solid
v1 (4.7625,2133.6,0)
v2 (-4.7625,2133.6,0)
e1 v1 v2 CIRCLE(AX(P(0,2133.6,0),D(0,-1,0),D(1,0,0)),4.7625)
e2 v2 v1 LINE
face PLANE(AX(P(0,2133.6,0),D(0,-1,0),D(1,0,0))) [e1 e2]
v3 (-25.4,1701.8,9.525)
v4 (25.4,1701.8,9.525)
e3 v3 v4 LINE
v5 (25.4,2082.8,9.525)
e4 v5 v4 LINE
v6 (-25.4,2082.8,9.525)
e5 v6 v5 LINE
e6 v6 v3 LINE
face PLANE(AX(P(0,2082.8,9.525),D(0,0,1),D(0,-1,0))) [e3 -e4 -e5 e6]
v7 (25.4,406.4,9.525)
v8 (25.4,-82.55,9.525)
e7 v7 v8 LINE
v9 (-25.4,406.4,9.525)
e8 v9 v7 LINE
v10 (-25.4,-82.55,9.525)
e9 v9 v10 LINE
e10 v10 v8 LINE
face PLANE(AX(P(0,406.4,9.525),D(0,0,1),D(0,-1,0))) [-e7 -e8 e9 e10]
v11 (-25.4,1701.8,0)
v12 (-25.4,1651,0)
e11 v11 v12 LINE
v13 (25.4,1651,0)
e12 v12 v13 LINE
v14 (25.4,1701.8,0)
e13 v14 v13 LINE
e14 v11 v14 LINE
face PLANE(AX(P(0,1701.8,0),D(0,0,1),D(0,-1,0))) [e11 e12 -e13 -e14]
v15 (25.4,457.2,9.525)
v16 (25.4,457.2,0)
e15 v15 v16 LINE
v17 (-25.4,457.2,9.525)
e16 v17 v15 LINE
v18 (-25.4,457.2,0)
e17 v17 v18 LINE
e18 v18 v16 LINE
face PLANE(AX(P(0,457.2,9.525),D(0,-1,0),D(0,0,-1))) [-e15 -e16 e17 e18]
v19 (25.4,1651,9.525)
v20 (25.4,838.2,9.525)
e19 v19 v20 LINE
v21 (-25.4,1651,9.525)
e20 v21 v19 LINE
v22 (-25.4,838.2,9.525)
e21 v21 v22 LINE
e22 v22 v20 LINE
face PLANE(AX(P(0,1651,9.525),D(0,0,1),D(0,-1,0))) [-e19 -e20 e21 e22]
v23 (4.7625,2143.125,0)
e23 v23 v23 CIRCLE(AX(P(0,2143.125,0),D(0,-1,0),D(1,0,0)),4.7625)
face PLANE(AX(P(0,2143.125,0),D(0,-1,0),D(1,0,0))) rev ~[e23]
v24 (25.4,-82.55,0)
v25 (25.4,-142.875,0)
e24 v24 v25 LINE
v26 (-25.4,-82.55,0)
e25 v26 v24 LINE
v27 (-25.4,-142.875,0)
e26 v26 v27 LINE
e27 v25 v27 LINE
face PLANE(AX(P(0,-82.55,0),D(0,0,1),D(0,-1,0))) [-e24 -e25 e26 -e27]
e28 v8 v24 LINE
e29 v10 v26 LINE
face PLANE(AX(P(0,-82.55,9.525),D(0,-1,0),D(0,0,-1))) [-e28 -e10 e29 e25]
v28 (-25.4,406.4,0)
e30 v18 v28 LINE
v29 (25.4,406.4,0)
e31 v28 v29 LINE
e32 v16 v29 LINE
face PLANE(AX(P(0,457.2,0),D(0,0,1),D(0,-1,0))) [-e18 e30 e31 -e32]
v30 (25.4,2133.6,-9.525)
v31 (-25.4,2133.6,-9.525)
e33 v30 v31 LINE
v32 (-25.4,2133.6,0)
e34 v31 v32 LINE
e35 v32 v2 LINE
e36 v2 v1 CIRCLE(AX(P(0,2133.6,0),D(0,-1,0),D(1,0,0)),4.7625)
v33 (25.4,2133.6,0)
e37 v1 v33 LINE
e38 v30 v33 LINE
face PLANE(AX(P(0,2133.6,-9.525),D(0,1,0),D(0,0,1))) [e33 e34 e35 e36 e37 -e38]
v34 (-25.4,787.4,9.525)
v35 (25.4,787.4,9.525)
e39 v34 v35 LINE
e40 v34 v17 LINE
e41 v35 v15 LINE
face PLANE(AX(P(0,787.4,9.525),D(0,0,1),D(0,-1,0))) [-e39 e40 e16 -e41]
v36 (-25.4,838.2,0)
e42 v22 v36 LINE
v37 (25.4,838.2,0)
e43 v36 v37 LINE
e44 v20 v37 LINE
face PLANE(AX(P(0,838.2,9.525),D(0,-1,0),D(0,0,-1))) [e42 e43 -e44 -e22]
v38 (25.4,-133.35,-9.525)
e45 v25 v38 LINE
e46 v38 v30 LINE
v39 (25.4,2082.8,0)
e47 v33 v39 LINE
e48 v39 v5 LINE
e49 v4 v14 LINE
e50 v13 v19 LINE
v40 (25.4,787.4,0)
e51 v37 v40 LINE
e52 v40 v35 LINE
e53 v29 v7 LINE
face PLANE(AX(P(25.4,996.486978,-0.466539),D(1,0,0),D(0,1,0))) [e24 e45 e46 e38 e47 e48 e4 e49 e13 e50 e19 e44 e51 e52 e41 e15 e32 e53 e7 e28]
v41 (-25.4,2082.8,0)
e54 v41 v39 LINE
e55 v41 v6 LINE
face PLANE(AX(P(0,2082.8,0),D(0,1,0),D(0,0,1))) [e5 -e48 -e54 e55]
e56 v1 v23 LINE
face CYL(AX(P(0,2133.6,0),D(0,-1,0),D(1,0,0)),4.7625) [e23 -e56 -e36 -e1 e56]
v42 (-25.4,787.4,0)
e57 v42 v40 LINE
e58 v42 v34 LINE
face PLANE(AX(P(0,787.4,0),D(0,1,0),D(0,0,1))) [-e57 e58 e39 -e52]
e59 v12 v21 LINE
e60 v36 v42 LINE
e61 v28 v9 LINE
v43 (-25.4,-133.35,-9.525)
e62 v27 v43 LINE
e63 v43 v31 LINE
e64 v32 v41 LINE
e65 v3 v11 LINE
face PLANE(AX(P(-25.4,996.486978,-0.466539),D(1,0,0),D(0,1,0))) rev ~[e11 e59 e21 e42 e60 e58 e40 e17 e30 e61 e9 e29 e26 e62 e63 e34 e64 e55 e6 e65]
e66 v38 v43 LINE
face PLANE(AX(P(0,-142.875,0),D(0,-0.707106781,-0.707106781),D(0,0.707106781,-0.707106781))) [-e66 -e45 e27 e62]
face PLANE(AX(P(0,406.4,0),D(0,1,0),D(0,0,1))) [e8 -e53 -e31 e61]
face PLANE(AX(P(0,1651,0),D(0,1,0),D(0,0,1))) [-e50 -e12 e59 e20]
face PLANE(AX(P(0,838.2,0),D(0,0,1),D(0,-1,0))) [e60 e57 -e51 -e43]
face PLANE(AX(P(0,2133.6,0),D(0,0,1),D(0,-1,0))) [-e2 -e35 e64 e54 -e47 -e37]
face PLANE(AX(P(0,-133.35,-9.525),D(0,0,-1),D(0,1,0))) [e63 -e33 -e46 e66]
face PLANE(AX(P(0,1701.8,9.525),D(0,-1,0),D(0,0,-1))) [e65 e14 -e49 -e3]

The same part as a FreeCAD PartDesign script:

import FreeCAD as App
import Part
import Sketcher
from FreeCAD import Vector
Q = App.Units.Quantity

doc = App.newDocument("Part")
body = doc.addObject("PartDesign::Body", "Body")

sketch1 = body.newObject("Sketcher::SketchObject", "Sketch")
sketch1.AttachmentSupport = (doc.getObject("YZ_Plane"), [""])
sketch1.MapMode = "FlatFace"
sketch1.addGeometry([
    Part.LineSegment(Vector(2134, -10, 0), Vector(2134, 0, 0)),
    Part.LineSegment(Vector(2134, 0, 0), Vector(2083, 0, 0)),
    Part.LineSegment(Vector(2083, 0, 0), Vector(2083, 10, 0)),
    Part.LineSegment(Vector(2083, 10, 0), Vector(1702, 10, 0)),
    Part.LineSegment(Vector(1702, 10, 0), Vector(1702, 0, 0)),
    Part.LineSegment(Vector(1702, 0, 0), Vector(1651, 0, 0)),
    Part.LineSegment(Vector(1651, 0, 0), Vector(1651, 10, 0)),
    Part.LineSegment(Vector(1651, 10, 0), Vector(838, 10, 0)),
    Part.LineSegment(Vector(838, 10, 0), Vector(838, 0, 0)),
    Part.LineSegment(Vector(838, 0, 0), Vector(787, 0, 0)),
    Part.LineSegment(Vector(787, 0, 0), Vector(787, 10, 0)),
    Part.LineSegment(Vector(787, 10, 0), Vector(457, 10, 0)),
    Part.LineSegment(Vector(457, 10, 0), Vector(457, 0, 0)),
    Part.LineSegment(Vector(457, 0, 0), Vector(406, 0, 0)),
    Part.LineSegment(Vector(406, 0, 0), Vector(406, 10, 0)),
    Part.LineSegment(Vector(406, 10, 0), Vector(-83, 10, 0)),
    Part.LineSegment(Vector(-83, 10, 0), Vector(-83, 0, 0)),
    Part.LineSegment(Vector(-83, 0, 0), Vector(-143, 0, 0)),
    Part.LineSegment(Vector(-143, 0, 0), Vector(-133, -10, 0)),
    Part.LineSegment(Vector(-133, -10, 0), Vector(2134, -10, 0)),
], False)
sketch1.addConstraint([
    Sketcher.Constraint("Coincident", 0, 2, 1, 1),
    Sketcher.Constraint("Coincident", 1, 2, 2, 1),
    Sketcher.Constraint("Coincident", 2, 2, 3, 1),
    Sketcher.Constraint("Coincident", 3, 2, 4, 1),
    Sketcher.Constraint("Coincident", 4, 2, 5, 1),
    Sketcher.Constraint("Coincident", 5, 2, 6, 1),
    Sketcher.Constraint("Coincident", 6, 2, 7, 1),
    Sketcher.Constraint("Coincident", 7, 2, 8, 1),
    Sketcher.Constraint("Coincident", 8, 2, 9, 1),
    Sketcher.Constraint("Coincident", 9, 2, 10, 1),
    Sketcher.Constraint("Coincident", 10, 2, 11, 1),
    Sketcher.Constraint("Coincident", 11, 2, 12, 1),
    Sketcher.Constraint("Coincident", 12, 2, 13, 1),
    Sketcher.Constraint("Coincident", 13, 2, 14, 1),
    Sketcher.Constraint("Coincident", 14, 2, 15, 1),
    Sketcher.Constraint("Coincident", 15, 2, 16, 1),
    Sketcher.Constraint("Coincident", 16, 2, 17, 1),
    Sketcher.Constraint("Coincident", 17, 2, 18, 1),
    Sketcher.Constraint("Coincident", 18, 2, 19, 1),
    Sketcher.Constraint("Coincident", 19, 2, 0, 1),
    Sketcher.Constraint("Vertical", 0),
    Sketcher.Constraint("Horizontal", 1),
    Sketcher.Constraint("Vertical", 2),
    Sketcher.Constraint("Horizontal", 3),
    Sketcher.Constraint("Vertical", 4),
    Sketcher.Constraint("Horizontal", 5),
    Sketcher.Constraint("Vertical", 6),
    Sketcher.Constraint("Horizontal", 7),
    Sketcher.Constraint("Vertical", 8),
    Sketcher.Constraint("Horizontal", 9),
    Sketcher.Constraint("Vertical", 10),
    Sketcher.Constraint("Horizontal", 11),
    Sketcher.Constraint("Vertical", 12),
    Sketcher.Constraint("Horizontal", 13),
    Sketcher.Constraint("Vertical", 14),
    Sketcher.Constraint("Horizontal", 15),
    Sketcher.Constraint("Vertical", 16),
    Sketcher.Constraint("Horizontal", 17),
    Sketcher.Constraint("Horizontal", 19),
    Sketcher.Constraint("PointOnObject", 0, 2, -1),
    Sketcher.Constraint("PointOnObject", 4, 2, -1),
    Sketcher.Constraint("PointOnObject", 8, 2, -1),
    Sketcher.Constraint("PointOnObject", 12, 2, -1),
    Sketcher.Constraint("PointOnObject", 16, 2, -1),
    Sketcher.Constraint("Horizontal", 3, 2, 6, 2),
    Sketcher.Constraint("Horizontal", 7, 2, 10, 2),
    Sketcher.Constraint("Horizontal", 11, 2, 14, 2),
    Sketcher.Constraint("Equal", 1, 5),
    Sketcher.Constraint("Equal", 5, 9),
    Sketcher.Constraint("Equal", 9, 13),
    Sketcher.Constraint("Equal", 0, 2),
    Sketcher.Constraint("DistanceX", 1, 2, 1, 1, Q("2 in")),
    Sketcher.Constraint("DistanceX", 3, 2, 3, 1, Q("15 in")),
    Sketcher.Constraint("DistanceX", 7, 2, 7, 1, Q("32 in")),
    Sketcher.Constraint("DistanceX", 11, 2, 11, 1, Q("13 in")),
    Sketcher.Constraint("DistanceX", -1, 1, 0, 2, Q("84 in")),
    Sketcher.Constraint("Angle", 18, Q("-45 deg")),
    Sketcher.Constraint("DistanceX", 18, 2, 16, 2, Q("2 in")),
    Sketcher.Constraint("DistanceX", 15, 2, 15, 1, Q("19.25 in")),
    Sketcher.Constraint("DistanceX", 17, 2, 17, 1, Q("2.375 in")),
])
pad1 = body.newObject("PartDesign::Pad", "Pad")
pad1.Profile = sketch1
pad1.Length = Q("2 in")
pad1.Midplane = True

sketch2 = body.newObject("Sketcher::SketchObject", "Sketch001")
sketch2.AttachmentSupport = (doc.getObject("XZ_Plane"), [""])
sketch2.MapMode = "FlatFace"
sketch2.AttachmentOffset = App.Placement(Vector(0, 0, -84 * 25.4), App.Rotation())
sketch2.addGeometry(Part.Circle(Vector(0, 0, 0), Vector(0, 0, 1), 4.8), False)
sketch2.addConstraint([
    Sketcher.Constraint("Coincident", 0, 3, -1, 1),
    Sketcher.Constraint("Diameter", 0, Q("0.375 in")),
])
pad2 = body.newObject("PartDesign::Pad", "Pad001")
pad2.Profile = sketch2
pad2.Length = Q("0.375 in")
pad2.Reversed = True

doc.recompute()
